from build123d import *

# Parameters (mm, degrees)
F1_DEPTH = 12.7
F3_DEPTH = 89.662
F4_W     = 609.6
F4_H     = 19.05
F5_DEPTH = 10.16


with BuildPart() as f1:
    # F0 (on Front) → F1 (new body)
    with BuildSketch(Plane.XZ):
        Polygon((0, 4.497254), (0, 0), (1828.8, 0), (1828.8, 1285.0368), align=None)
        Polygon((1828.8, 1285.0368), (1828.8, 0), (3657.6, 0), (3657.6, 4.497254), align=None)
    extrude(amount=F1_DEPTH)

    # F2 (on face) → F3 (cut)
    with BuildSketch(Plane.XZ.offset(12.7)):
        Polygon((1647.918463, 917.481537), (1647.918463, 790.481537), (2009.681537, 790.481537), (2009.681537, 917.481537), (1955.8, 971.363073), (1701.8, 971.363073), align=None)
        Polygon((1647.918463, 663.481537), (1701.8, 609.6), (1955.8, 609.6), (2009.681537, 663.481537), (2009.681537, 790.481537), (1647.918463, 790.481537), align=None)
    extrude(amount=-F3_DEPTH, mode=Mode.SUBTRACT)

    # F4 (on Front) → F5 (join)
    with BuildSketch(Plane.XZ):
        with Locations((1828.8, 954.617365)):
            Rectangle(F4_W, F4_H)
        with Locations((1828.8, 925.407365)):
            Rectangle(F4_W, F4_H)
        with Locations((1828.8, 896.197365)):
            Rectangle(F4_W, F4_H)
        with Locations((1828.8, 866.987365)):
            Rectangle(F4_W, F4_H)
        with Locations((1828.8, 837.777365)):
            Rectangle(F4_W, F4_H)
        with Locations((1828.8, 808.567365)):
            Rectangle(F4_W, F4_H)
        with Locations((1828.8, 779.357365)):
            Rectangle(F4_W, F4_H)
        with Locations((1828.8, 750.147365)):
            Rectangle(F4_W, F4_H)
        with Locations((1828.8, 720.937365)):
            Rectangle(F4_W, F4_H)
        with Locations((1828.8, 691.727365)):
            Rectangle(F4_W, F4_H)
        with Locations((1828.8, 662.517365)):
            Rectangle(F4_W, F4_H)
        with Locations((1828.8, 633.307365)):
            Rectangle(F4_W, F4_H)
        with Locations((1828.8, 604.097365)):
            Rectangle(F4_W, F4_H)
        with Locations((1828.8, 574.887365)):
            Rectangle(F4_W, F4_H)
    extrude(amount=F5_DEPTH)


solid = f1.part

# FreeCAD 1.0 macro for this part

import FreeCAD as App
import Part
import Sketcher
from FreeCAD import Vector
Q = App.Units.Quantity

doc = App.newDocument("Part")
body = doc.addObject("PartDesign::Body", "Body")

# Sketch on XZ plane
sketch1 = body.newObject("Sketcher::SketchObject", "Sketch")
sketch1.AttachmentSupport = (doc.getObject("XZ_Plane"), [""])
sketch1.MapMode = "FlatFace"
sketch1.addGeometry(Part.LineSegment(Vector(0, 4.5, 0), Vector(0, 0, 0)), False)
sketch1.addGeometry(Part.LineSegment(Vector(0, 0, 0), Vector(3657.6, 0, 0)), False)
sketch1.addGeometry(Part.LineSegment(Vector(3657.6, 0, 0), Vector(3657.6, 4.5, 0)), False)
sketch1.addGeometry(Part.LineSegment(Vector(3657.6, 4.5, 0), Vector(1828.8, 1285, 0)), False)
sketch1.addGeometry(Part.LineSegment(Vector(1828.8, 1285, 0), Vector(0, 4.5, 0)), False)
sketch1.addConstraint(Sketcher.Constraint("Coincident", 0, 2, 1, 1))
sketch1.addConstraint(Sketcher.Constraint("Coincident", 1, 2, 2, 1))
sketch1.addConstraint(Sketcher.Constraint("Coincident", 2, 2, 3, 1))
sketch1.addConstraint(Sketcher.Constraint("Coincident", 3, 2, 4, 1))
sketch1.addConstraint(Sketcher.Constraint("Coincident", 4, 2, 0, 1))
sketch1.addConstraint(Sketcher.Constraint("Vertical", 0))
sketch1.addConstraint(Sketcher.Constraint("Horizontal", 1))
sketch1.addConstraint(Sketcher.Constraint("Vertical", 2))
sketch1.addConstraint(Sketcher.Constraint("Coincident", 0, 2, -1, 1))
sketch1.addConstraint(Sketcher.Constraint("Horizontal", 2, 2, 4, 2))
sketch1.addConstraint(Sketcher.Constraint("Equal", 3, 4))
sketch1.addConstraint(Sketcher.Constraint("DistanceX", 1, 1, 1, 2, Q("144 in")))
sketch1.addConstraint(Sketcher.Constraint("Angle", 3, Q("145 deg")))
sketch1.addConstraint(Sketcher.Constraint("DistanceY", -1, 1, 3, 2, Q("50.592 in")))
pad1 = body.newObject("PartDesign::Pad", "Pad")
pad1.Profile = sketch1
pad1.Length = Q("0.5 in")

# Sketch on XZ plane
sketch2 = body.newObject("Sketcher::SketchObject", "Sketch001")
sketch2.AttachmentSupport = (doc.getObject("XZ_Plane"), [""])
sketch2.MapMode = "FlatFace"
sketch2.AttachmentOffset = App.Placement(Vector(0, 0, 0.5 * 25.4), App.Rotation())
sketch2.addGeometry(Part.LineSegment(Vector(1648, 917, 0), Vector(1648, 663, 0)), False)
sketch2.addGeometry(Part.LineSegment(Vector(1648, 663, 0), Vector(1702, 610, 0)), False)
sketch2.addGeometry(Part.LineSegment(Vector(1702, 610, 0), Vector(1956, 610, 0)), False)
sketch2.addGeometry(Part.LineSegment(Vector(1956, 610, 0), Vector(2010, 663, 0)), False)
sketch2.addGeometry(Part.LineSegment(Vector(2010, 663, 0), Vector(2010, 917, 0)), False)
sketch2.addGeometry(Part.LineSegment(Vector(2010, 917, 0), Vector(1956, 971, 0)), False)
sketch2.addGeometry(Part.LineSegment(Vector(1956, 971, 0), Vector(1702, 971, 0)), False)
sketch2.addGeometry(Part.LineSegment(Vector(1702, 971, 0), Vector(1648, 917, 0)), False)
sketch2.addConstraint(Sketcher.Constraint("Coincident", 0, 2, 1, 1))
sketch2.addConstraint(Sketcher.Constraint("Coincident", 1, 2, 2, 1))
sketch2.addConstraint(Sketcher.Constraint("Coincident", 2, 2, 3, 1))
sketch2.addConstraint(Sketcher.Constraint("Coincident", 3, 2, 4, 1))
sketch2.addConstraint(Sketcher.Constraint("Coincident", 4, 2, 5, 1))
sketch2.addConstraint(Sketcher.Constraint("Coincident", 5, 2, 6, 1))
sketch2.addConstraint(Sketcher.Constraint("Coincident", 6, 2, 7, 1))
sketch2.addConstraint(Sketcher.Constraint("Coincident", 7, 2, 0, 1))
sketch2.addConstraint(Sketcher.Constraint("Vertical", 0))
sketch2.addConstraint(Sketcher.Constraint("Horizontal", 2))
sketch2.addConstraint(Sketcher.Constraint("Vertical", 4))
sketch2.addConstraint(Sketcher.Constraint("Horizontal", 6))
sketch2.addConstraint(Sketcher.Constraint("Perpendicular", 1, 3))
sketch2.addConstraint(Sketcher.Constraint("Perpendicular", 3, 5))
sketch2.addConstraint(Sketcher.Constraint("Perpendicular", 5, 7))
sketch2.addConstraint(Sketcher.Constraint("Horizontal", 0, 2, 3, 2))
sketch2.addConstraint(Sketcher.Constraint("Horizontal", 4, 2, 7, 2))
sketch2.addConstraint(Sketcher.Constraint("Vertical", 2, 2, 5, 2))
sketch2.addConstraint(Sketcher.Constraint("Vertical", 1, 2, 6, 2))
sketch2.addConstraint(Sketcher.Constraint("Equal", 6, 0))
sketch2.addConstraint(Sketcher.Constraint("DistanceX", 2, 1, 2, 2, Q("10 in")))
sketch2.addConstraint(Sketcher.Constraint("Distance", 1, Q("3 in")))
sketch2.addConstraint(Sketcher.Constraint("DistanceX", -1, 1, 1, 2, Q("67 in")))
sketch2.addConstraint(Sketcher.Constraint("DistanceY", -1, 1, 1, 2, Q("24 in")))
pocket1 = body.newObject("PartDesign::Pocket", "Pocket")
pocket1.Profile = sketch2
pocket1.Length = Q("3.53 in")

# Sketch on XZ plane
sketch3 = body.newObject("Sketcher::SketchObject", "Sketch002")
sketch3.AttachmentSupport = (doc.getObject("XZ_Plane"), [""])
sketch3.MapMode = "FlatFace"
sketch3.addGeometry(Part.LineSegment(Vector(1524, 964, 0), Vector(1524, 945, 0)), False)
sketch3.addGeometry(Part.LineSegment(Vector(1524, 945, 0), Vector(2134, 945, 0)), False)
sketch3.addGeometry(Part.LineSegment(Vector(2134, 945, 0), Vector(2134, 964, 0)), False)
sketch3.addGeometry(Part.LineSegment(Vector(2134, 964, 0), Vector(1524, 964, 0)), False)
sketch3.addGeometry(Part.LineSegment(Vector(1524, 935, 0), Vector(1524, 916, 0)), False)
sketch3.addGeometry(Part.LineSegment(Vector(1524, 916, 0), Vector(2134, 916, 0)), False)
sketch3.addGeometry(Part.LineSegment(Vector(2134, 916, 0), Vector(2134, 935, 0)), False)
sketch3.addGeometry(Part.LineSegment(Vector(2134, 935, 0), Vector(1524, 935, 0)), False)
sketch3.addGeometry(Part.LineSegment(Vector(1524, 906, 0), Vector(1524, 887, 0)), False)
sketch3.addGeometry(Part.LineSegment(Vector(1524, 887, 0), Vector(2134, 887, 0)), False)
sketch3.addGeometry(Part.LineSegment(Vector(2134, 887, 0), Vector(2134, 906, 0)), False)
sketch3.addGeometry(Part.LineSegment(Vector(2134, 906, 0), Vector(1524, 906, 0)), False)
sketch3.addGeometry(Part.LineSegment(Vector(1524, 877, 0), Vector(1524, 857, 0)), False)
sketch3.addGeometry(Part.LineSegment(Vector(1524, 857, 0), Vector(2134, 857, 0)), False)
sketch3.addGeometry(Part.LineSegment(Vector(2134, 857, 0), Vector(2134, 877, 0)), False)
sketch3.addGeometry(Part.LineSegment(Vector(2134, 877, 0), Vector(1524, 877, 0)), False)
sketch3.addGeometry(Part.LineSegment(Vector(1524, 847, 0), Vector(1524, 828, 0)), False)
sketch3.addGeometry(Part.LineSegment(Vector(1524, 828, 0), Vector(2134, 828, 0)), False)
sketch3.addGeometry(Part.LineSegment(Vector(2134, 828, 0), Vector(2134, 847, 0)), False)
sketch3.addGeometry(Part.LineSegment(Vector(2134, 847, 0), Vector(1524, 847, 0)), False)
sketch3.addGeometry(Part.LineSegment(Vector(1524, 818, 0), Vector(1524, 799, 0)), False)
sketch3.addGeometry(Part.LineSegment(Vector(1524, 799, 0), Vector(2134, 799, 0)), False)
sketch3.addGeometry(Part.LineSegment(Vector(2134, 799, 0), Vector(2134, 818, 0)), False)
sketch3.addGeometry(Part.LineSegment(Vector(2134, 818, 0), Vector(1524, 818, 0)), False)
sketch3.addGeometry(Part.LineSegment(Vector(1524, 789, 0), Vector(1524, 770, 0)), False)
sketch3.addGeometry(Part.LineSegment(Vector(1524, 770, 0), Vector(2134, 770, 0)), False)
sketch3.addGeometry(Part.LineSegment(Vector(2134, 770, 0), Vector(2134, 789, 0)), False)
sketch3.addGeometry(Part.LineSegment(Vector(2134, 789, 0), Vector(1524, 789, 0)), False)
sketch3.addGeometry(Part.LineSegment(Vector(1524, 760, 0), Vector(1524, 741, 0)), False)
sketch3.addGeometry(Part.LineSegment(Vector(1524, 741, 0), Vector(2134, 741, 0)), False)
sketch3.addGeometry(Part.LineSegment(Vector(2134, 741, 0), Vector(2134, 760, 0)), False)
sketch3.addGeometry(Part.LineSegment(Vector(2134, 760, 0), Vector(1524, 760, 0)), False)
sketch3.addGeometry(Part.LineSegment(Vector(1524, 730, 0), Vector(1524, 711, 0)), False)
sketch3.addGeometry(Part.LineSegment(Vector(1524, 711, 0), Vector(2134, 711, 0)), False)
sketch3.addGeometry(Part.LineSegment(Vector(2134, 711, 0), Vector(2134, 730, 0)), False)
sketch3.addGeometry(Part.LineSegment(Vector(2134, 730, 0), Vector(1524, 730, 0)), False)
sketch3.addGeometry(Part.LineSegment(Vector(1524, 701, 0), Vector(1524, 682, 0)), False)
sketch3.addGeometry(Part.LineSegment(Vector(1524, 682, 0), Vector(2134, 682, 0)), False)
sketch3.addGeometry(Part.LineSegment(Vector(2134, 682, 0), Vector(2134, 701, 0)), False)
sketch3.addGeometry(Part.LineSegment(Vector(2134, 701, 0), Vector(1524, 701, 0)), False)
sketch3.addGeometry(Part.LineSegment(Vector(1524, 672, 0), Vector(1524, 653, 0)), False)
sketch3.addGeometry(Part.LineSegment(Vector(1524, 653, 0), Vector(2134, 653, 0)), False)
sketch3.addGeometry(Part.LineSegment(Vector(2134, 653, 0), Vector(2134, 672, 0)), False)
sketch3.addGeometry(Part.LineSegment(Vector(2134, 672, 0), Vector(1524, 672, 0)), False)
sketch3.addGeometry(Part.LineSegment(Vector(1524, 643, 0), Vector(1524, 624, 0)), False)
sketch3.addGeometry(Part.LineSegment(Vector(1524, 624, 0), Vector(2134, 624, 0)), False)
sketch3.addGeometry(Part.LineSegment(Vector(2134, 624, 0), Vector(2134, 643, 0)), False)
sketch3.addGeometry(Part.LineSegment(Vector(2134, 643, 0), Vector(1524, 643, 0)), False)
sketch3.addGeometry(Part.LineSegment(Vector(1524, 614, 0), Vector(1524, 595, 0)), False)
sketch3.addGeometry(Part.LineSegment(Vector(1524, 595, 0), Vector(2134, 595, 0)), False)
sketch3.addGeometry(Part.LineSegment(Vector(2134, 595, 0), Vector(2134, 614, 0)), False)
sketch3.addGeometry(Part.LineSegment(Vector(2134, 614, 0), Vector(1524, 614, 0)), False)
sketch3.addGeometry(Part.LineSegment(Vector(1524, 584, 0), Vector(1524, 565, 0)), False)
sketch3.addGeometry(Part.LineSegment(Vector(1524, 565, 0), Vector(2134, 565, 0)), False)
sketch3.addGeometry(Part.LineSegment(Vector(2134, 565, 0), Vector(2134, 584, 0)), False)
sketch3.addGeometry(Part.LineSegment(Vector(2134, 584, 0), Vector(1524, 584, 0)), False)
sketch3.addConstraint(Sketcher.Constraint("Coincident", 0, 2, 1, 1))
sketch3.addConstraint(Sketcher.Constraint("Coincident", 1, 2, 2, 1))
sketch3.addConstraint(Sketcher.Constraint("Coincident", 2, 2, 3, 1))
sketch3.addConstraint(Sketcher.Constraint("Coincident", 3, 2, 0, 1))
sketch3.addConstraint(Sketcher.Constraint("Coincident", 4, 2, 5, 1))
sketch3.addConstraint(Sketcher.Constraint("Coincident", 5, 2, 6, 1))
sketch3.addConstraint(Sketcher.Constraint("Coincident", 6, 2, 7, 1))
sketch3.addConstraint(Sketcher.Constraint("Coincident", 7, 2, 4, 1))
sketch3.addConstraint(Sketcher.Constraint("Coincident", 8, 2, 9, 1))
sketch3.addConstraint(Sketcher.Constraint("Coincident", 9, 2, 10, 1))
sketch3.addConstraint(Sketcher.Constraint("Coincident", 10, 2, 11, 1))
sketch3.addConstraint(Sketcher.Constraint("Coincident", 11, 2, 8, 1))
sketch3.addConstraint(Sketcher.Constraint("Coincident", 12, 2, 13, 1))
sketch3.addConstraint(Sketcher.Constraint("Coincident", 13, 2, 14, 1))
sketch3.addConstraint(Sketcher.Constraint("Coincident", 14, 2, 15, 1))
sketch3.addConstraint(Sketcher.Constraint("Coincident", 15, 2, 12, 1))
sketch3.addConstraint(Sketcher.Constraint("Coincident", 16, 2, 17, 1))
sketch3.addConstraint(Sketcher.Constraint("Coincident", 17, 2, 18, 1))
sketch3.addConstraint(Sketcher.Constraint("Coincident", 18, 2, 19, 1))
sketch3.addConstraint(Sketcher.Constraint("Coincident", 19, 2, 16, 1))
sketch3.addConstraint(Sketcher.Constraint("Coincident", 20, 2, 21, 1))
sketch3.addConstraint(Sketcher.Constraint("Coincident", 21, 2, 22, 1))
sketch3.addConstraint(Sketcher.Constraint("Coincident", 22, 2, 23, 1))
sketch3.addConstraint(Sketcher.Constraint("Coincident", 23, 2, 20, 1))
sketch3.addConstraint(Sketcher.Constraint("Coincident", 24, 2, 25, 1))
sketch3.addConstraint(Sketcher.Constraint("Coincident", 25, 2, 26, 1))
sketch3.addConstraint(Sketcher.Constraint("Coincident", 26, 2, 27, 1))
sketch3.addConstraint(Sketcher.Constraint("Coincident", 27, 2, 24, 1))
sketch3.addConstraint(Sketcher.Constraint("Coincident", 28, 2, 29, 1))
sketch3.addConstraint(Sketcher.Constraint("Coincident", 29, 2, 30, 1))
sketch3.addConstraint(Sketcher.Constraint("Coincident", 30, 2, 31, 1))
sketch3.addConstraint(Sketcher.Constraint("Coincident", 31, 2, 28, 1))
sketch3.addConstraint(Sketcher.Constraint("Coincident", 32, 2, 33, 1))
sketch3.addConstraint(Sketcher.Constraint("Coincident", 33, 2, 34, 1))
sketch3.addConstraint(Sketcher.Constraint("Coincident", 34, 2, 35, 1))
sketch3.addConstraint(Sketcher.Constraint("Coincident", 35, 2, 32, 1))
sketch3.addConstraint(Sketcher.Constraint("Coincident", 36, 2, 37, 1))
sketch3.addConstraint(Sketcher.Constraint("Coincident", 37, 2, 38, 1))
sketch3.addConstraint(Sketcher.Constraint("Coincident", 38, 2, 39, 1))
sketch3.addConstraint(Sketcher.Constraint("Coincident", 39, 2, 36, 1))
sketch3.addConstraint(Sketcher.Constraint("Coincident", 40, 2, 41, 1))
sketch3.addConstraint(Sketcher.Constraint("Coincident", 41, 2, 42, 1))
sketch3.addConstraint(Sketcher.Constraint("Coincident", 42, 2, 43, 1))
sketch3.addConstraint(Sketcher.Constraint("Coincident", 43, 2, 40, 1))
sketch3.addConstraint(Sketcher.Constraint("Coincident", 44, 2, 45, 1))
sketch3.addConstraint(Sketcher.Constraint("Coincident", 45, 2, 46, 1))
sketch3.addConstraint(Sketcher.Constraint("Coincident", 46, 2, 47, 1))
sketch3.addConstraint(Sketcher.Constraint("Coincident", 47, 2, 44, 1))
sketch3.addConstraint(Sketcher.Constraint("Coincident", 48, 2, 49, 1))
sketch3.addConstraint(Sketcher.Constraint("Coincident", 49, 2, 50, 1))
sketch3.addConstraint(Sketcher.Constraint("Coincident", 50, 2, 51, 1))
sketch3.addConstraint(Sketcher.Constraint("Coincident", 51, 2, 48, 1))
sketch3.addConstraint(Sketcher.Constraint("Coincident", 52, 2, 53, 1))
sketch3.addConstraint(Sketcher.Constraint("Coincident", 53, 2, 54, 1))
sketch3.addConstraint(Sketcher.Constraint("Coincident", 54, 2, 55, 1))
sketch3.addConstraint(Sketcher.Constraint("Coincident", 55, 2, 52, 1))
sketch3.addConstraint(Sketcher.Constraint("Vertical", 0))
sketch3.addConstraint(Sketcher.Constraint("Horizontal", 1))
sketch3.addConstraint(Sketcher.Constraint("Vertical", 2))
sketch3.addConstraint(Sketcher.Constraint("Horizontal", 3))
sketch3.addConstraint(Sketcher.Constraint("Vertical", 4))
sketch3.addConstraint(Sketcher.Constraint("Horizontal", 5))
sketch3.addConstraint(Sketcher.Constraint("Vertical", 6))
sketch3.addConstraint(Sketcher.Constraint("Horizontal", 7))
sketch3.addConstraint(Sketcher.Constraint("Vertical", 8))
sketch3.addConstraint(Sketcher.Constraint("Horizontal", 9))
sketch3.addConstraint(Sketcher.Constraint("Vertical", 10))
sketch3.addConstraint(Sketcher.Constraint("Horizontal", 11))
sketch3.addConstraint(Sketcher.Constraint("Vertical", 12))
sketch3.addConstraint(Sketcher.Constraint("Horizontal", 13))
sketch3.addConstraint(Sketcher.Constraint("Vertical", 14))
sketch3.addConstraint(Sketcher.Constraint("Horizontal", 15))
sketch3.addConstraint(Sketcher.Constraint("Vertical", 16))
sketch3.addConstraint(Sketcher.Constraint("Horizontal", 17))
sketch3.addConstraint(Sketcher.Constraint("Vertical", 18))
sketch3.addConstraint(Sketcher.Constraint("Horizontal", 19))
sketch3.addConstraint(Sketcher.Constraint("Vertical", 20))
sketch3.addConstraint(Sketcher.Constraint("Horizontal", 21))
sketch3.addConstraint(Sketcher.Constraint("Vertical", 22))
sketch3.addConstraint(Sketcher.Constraint("Horizontal", 23))
sketch3.addConstraint(Sketcher.Constraint("Vertical", 24))
sketch3.addConstraint(Sketcher.Constraint("Horizontal", 25))
sketch3.addConstraint(Sketcher.Constraint("Vertical", 26))
sketch3.addConstraint(Sketcher.Constraint("Horizontal", 27))
sketch3.addConstraint(Sketcher.Constraint("Vertical", 28))
sketch3.addConstraint(Sketcher.Constraint("Horizontal", 29))
sketch3.addConstraint(Sketcher.Constraint("Vertical", 30))
sketch3.addConstraint(Sketcher.Constraint("Horizontal", 31))
sketch3.addConstraint(Sketcher.Constraint("Vertical", 32))
sketch3.addConstraint(Sketcher.Constraint("Horizontal", 33))
sketch3.addConstraint(Sketcher.Constraint("Vertical", 34))
sketch3.addConstraint(Sketcher.Constraint("Horizontal", 35))
sketch3.addConstraint(Sketcher.Constraint("Vertical", 36))
sketch3.addConstraint(Sketcher.Constraint("Horizontal", 37))
sketch3.addConstraint(Sketcher.Constraint("Vertical", 38))
sketch3.addConstraint(Sketcher.Constraint("Horizontal", 39))
sketch3.addConstraint(Sketcher.Constraint("Vertical", 40))
sketch3.addConstraint(Sketcher.Constraint("Horizontal", 41))
sketch3.addConstraint(Sketcher.Constraint("Vertical", 42))
sketch3.addConstraint(Sketcher.Constraint("Horizontal", 43))
sketch3.addConstraint(Sketcher.Constraint("Vertical", 44))
sketch3.addConstraint(Sketcher.Constraint("Horizontal", 45))
sketch3.addConstraint(Sketcher.Constraint("Vertical", 46))
sketch3.addConstraint(Sketcher.Constraint("Horizontal", 47))
sketch3.addConstraint(Sketcher.Constraint("Vertical", 48))
sketch3.addConstraint(Sketcher.Constraint("Horizontal", 49))
sketch3.addConstraint(Sketcher.Constraint("Vertical", 50))
sketch3.addConstraint(Sketcher.Constraint("Horizontal", 51))
sketch3.addConstraint(Sketcher.Constraint("Vertical", 52))
sketch3.addConstraint(Sketcher.Constraint("Horizontal", 53))
sketch3.addConstraint(Sketcher.Constraint("Vertical", 54))
sketch3.addConstraint(Sketcher.Constraint("Horizontal", 55))
sketch3.addConstraint(Sketcher.Constraint("Vertical", 3, 2, 4, 2))
sketch3.addConstraint(Sketcher.Constraint("Vertical", 2, 2, 5, 2))
sketch3.addConstraint(Sketcher.Constraint("Vertical", 7, 2, 8, 2))
sketch3.addConstraint(Sketcher.Constraint("Vertical", 6, 2, 9, 2))
sketch3.addConstraint(Sketcher.Constraint("Vertical", 11, 2, 12, 2))
sketch3.addConstraint(Sketcher.Constraint("Vertical", 10, 2, 13, 2))
sketch3.addConstraint(Sketcher.Constraint("Vertical", 15, 2, 16, 2))
sketch3.addConstraint(Sketcher.Constraint("Vertical", 14, 2, 17, 2))
sketch3.addConstraint(Sketcher.Constraint("Vertical", 19, 2, 20, 2))
sketch3.addConstraint(Sketcher.Constraint("Vertical", 18, 2, 21, 2))
sketch3.addConstraint(Sketcher.Constraint("Vertical", 23, 2, 24, 2))
sketch3.addConstraint(Sketcher.Constraint("Vertical", 22, 2, 25, 2))
sketch3.addConstraint(Sketcher.Constraint("Vertical", 27, 2, 28, 2))
sketch3.addConstraint(Sketcher.Constraint("Vertical", 26, 2, 29, 2))
sketch3.addConstraint(Sketcher.Constraint("Vertical", 31, 2, 32, 2))
sketch3.addConstraint(Sketcher.Constraint("Vertical", 30, 2, 33, 2))
sketch3.addConstraint(Sketcher.Constraint("Vertical", 35, 2, 36, 2))
sketch3.addConstraint(Sketcher.Constraint("Vertical", 34, 2, 37, 2))
sketch3.addConstraint(Sketcher.Constraint("Vertical", 39, 2, 40, 2))
sketch3.addConstraint(Sketcher.Constraint("Vertical", 38, 2, 41, 2))
sketch3.addConstraint(Sketcher.Constraint("Vertical", 43, 2, 44, 2))
sketch3.addConstraint(Sketcher.Constraint("Vertical", 42, 2, 45, 2))
sketch3.addConstraint(Sketcher.Constraint("Vertical", 47, 2, 48, 2))
sketch3.addConstraint(Sketcher.Constraint("Vertical", 46, 2, 49, 2))
sketch3.addConstraint(Sketcher.Constraint("Vertical", 51, 2, 52, 2))
sketch3.addConstraint(Sketcher.Constraint("Vertical", 50, 2, 53, 2))
sketch3.addConstraint(Sketcher.Constraint("Equal", 2, 4))
sketch3.addConstraint(Sketcher.Constraint("Equal", 6, 8))
sketch3.addConstraint(Sketcher.Constraint("Equal", 10, 12))
sketch3.addConstraint(Sketcher.Constraint("Equal", 14, 16))
sketch3.addConstraint(Sketcher.Constraint("Equal", 18, 20))
sketch3.addConstraint(Sketcher.Constraint("Equal", 22, 24))
sketch3.addConstraint(Sketcher.Constraint("Equal", 26, 28))
sketch3.addConstraint(Sketcher.Constraint("Equal", 30, 32))
sketch3.addConstraint(Sketcher.Constraint("Equal", 34, 36))
sketch3.addConstraint(Sketcher.Constraint("Equal", 38, 40))
sketch3.addConstraint(Sketcher.Constraint("Equal", 42, 44))
sketch3.addConstraint(Sketcher.Constraint("Equal", 46, 48))
sketch3.addConstraint(Sketcher.Constraint("Equal", 50, 52))
sketch3.addConstraint(Sketcher.Constraint("DistanceX", 1, 1, 1, 2, Q("24 in")))
sketch3.addConstraint(Sketcher.Constraint("DistanceX", -1, 1, 0, 2, Q("60 in")))
sketch3.addConstraint(Sketcher.Constraint("DistanceY", 0, 2, 0, 1, Q("0.75 in")))
sketch3.addConstraint(Sketcher.Constraint("DistanceY", 4, 2, 3, 2, Q("1.9 in")))
sketch3.addConstraint(Sketcher.Constraint("DistanceY", 8, 2, 7, 2, Q("1.9 in")))
sketch3.addConstraint(Sketcher.Constraint("DistanceY", 12, 2, 11, 2, Q("1.9 in")))
sketch3.addConstraint(Sketcher.Constraint("DistanceY", 16, 2, 15, 2, Q("1.9 in")))
sketch3.addConstraint(Sketcher.Constraint("DistanceY", 20, 2, 19, 2, Q("1.9 in")))
sketch3.addConstraint(Sketcher.Constraint("DistanceY", 24, 2, 23, 2, Q("1.9 in")))
sketch3.addConstraint(Sketcher.Constraint("DistanceY", 28, 2, 27, 2, Q("1.9 in")))
sketch3.addConstraint(Sketcher.Constraint("DistanceY", 32, 2, 31, 2, Q("1.9 in")))
sketch3.addConstraint(Sketcher.Constraint("DistanceY", 36, 2, 35, 2, Q("1.9 in")))
sketch3.addConstraint(Sketcher.Constraint("DistanceY", 40, 2, 39, 2, Q("1.9 in")))
sketch3.addConstraint(Sketcher.Constraint("DistanceY", 44, 2, 43, 2, Q("1.9 in")))
sketch3.addConstraint(Sketcher.Constraint("DistanceY", 48, 2, 47, 2, Q("1.9 in")))
sketch3.addConstraint(Sketcher.Constraint("DistanceY", 52, 2, 51, 2, Q("1.9 in")))
sketch3.addConstraint(Sketcher.Constraint("DistanceY", -1, 1, 0, 2, Q("945.092365 mm")))
pad2 = body.newObject("PartDesign::Pad", "Pad001")
pad2.Profile = sketch3
pad2.Length = Q("0.4 in")

doc.recompute()
